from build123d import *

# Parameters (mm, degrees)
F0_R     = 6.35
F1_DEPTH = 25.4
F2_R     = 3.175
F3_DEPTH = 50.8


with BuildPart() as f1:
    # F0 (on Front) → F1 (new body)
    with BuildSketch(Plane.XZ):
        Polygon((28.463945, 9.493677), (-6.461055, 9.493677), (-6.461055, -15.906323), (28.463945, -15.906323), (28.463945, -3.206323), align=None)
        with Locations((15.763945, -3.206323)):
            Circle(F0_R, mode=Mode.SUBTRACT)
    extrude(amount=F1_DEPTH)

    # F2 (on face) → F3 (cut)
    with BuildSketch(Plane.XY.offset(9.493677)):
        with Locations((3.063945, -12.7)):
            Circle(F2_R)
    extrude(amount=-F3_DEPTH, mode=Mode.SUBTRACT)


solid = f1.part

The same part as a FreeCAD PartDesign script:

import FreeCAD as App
import Part
import Sketcher
Q = App.Units.Quantity

doc = App.newDocument("Part")
params = doc.addObject("Spreadsheet::Sheet", "Params")
for row, (alias, value) in enumerate([
    ("sketch1_diameter", "0.5 in"),
    ("sketch1_height", "1 in"),
    ("sketch1_width", "1.375 in"),
    ("pad1_length", "1 in"),
    ("sketch2_diameter", "0.25 in"),
    ("pocket1_length", "2 in"),
], start=1):
    params.set(f"A{row}", alias)
    params.set(f"B{row}", "=" + value)
    params.setAlias(f"B{row}", alias)

body = doc.addObject("PartDesign::Body", "Body")

sketch1 = doc.addObject("Sketcher::SketchObject", "Sketch")
body.addObject(sketch1)
sketch1.AttachmentSupport = (doc.XZ_Plane, [""])
sketch1.MapMode = "FlatFace"
sketch1.addGeometry([
    Part.LineSegment(App.Vector(28, 9, 0), App.Vector(-6, 9, 0)),
    Part.LineSegment(App.Vector(-6, 9, 0), App.Vector(-6, -16, 0)),
    Part.LineSegment(App.Vector(-6, -16, 0), App.Vector(28, -16, 0)),
    Part.LineSegment(App.Vector(28, -16, 0), App.Vector(28, 9, 0)),
    Part.Circle(App.Vector(16, -3, 0), App.Vector(0, 0, 1), 6),
], False)
sketch1.addConstraint([
    Sketcher.Constraint("Coincident", 0, 2, 1, 1),
    Sketcher.Constraint("Coincident", 1, 2, 2, 1),
    Sketcher.Constraint("Coincident", 2, 2, 3, 1),
    Sketcher.Constraint("Coincident", 3, 2, 0, 1),
    Sketcher.Constraint("Horizontal", 0),
    Sketcher.Constraint("Vertical", 1),
    Sketcher.Constraint("Horizontal", 2),
    Sketcher.Constraint("Vertical", 3),
    Sketcher.Constraint("Diameter", 4, Q("0.5 in")),
    Sketcher.Constraint("DistanceY", 1, 2, 1, 1, Q("1 in")),
    Sketcher.Constraint("DistanceY", 4, 3, 0, 2, Q("0.5 in")),
    Sketcher.Constraint("DistanceX", 4, 3, 2, 2, Q("0.5 in")),
    Sketcher.Constraint("DistanceX", 0, 2, 0, 1, Q("1.375 in")),
    Sketcher.Constraint("DistanceX", -1, 1, 4, 3, 15.763945),
    Sketcher.Constraint("DistanceY", 4, 3, -1, 1, 3.206323),
])
sketch1.setExpression("Constraints[8]", "Params.sketch1_diameter")
sketch1.setExpression("Constraints[9]", "Params.sketch1_height")
sketch1.setExpression("Constraints[12]", "Params.sketch1_width")
pad1 = doc.addObject("PartDesign::Pad", "Pad")
body.addObject(pad1)
pad1.Profile = sketch1
pad1.setExpression("Length", "Params.pad1_length")

sketch2 = doc.addObject("Sketcher::SketchObject", "Sketch001")
body.addObject(sketch2)
sketch2.AttachmentSupport = (doc.XY_Plane, [""])
sketch2.MapMode = "FlatFace"
sketch2.AttachmentOffset = App.Placement(App.Vector(0, 0, 9.493677), App.Rotation())
sketch2.addGeometry(Part.Circle(App.Vector(3.1, -12.7, 0), App.Vector(0, 0, 1), 3.2), False)
sketch2.addConstraint([
    Sketcher.Constraint("Diameter", 0, Q("0.25 in")),
    Sketcher.Constraint("DistanceY", 0, 3, -1, 1, Q("0.5 in")),
    Sketcher.Constraint("DistanceX", -1, 1, 0, 3, 3.063945),
])
sketch2.setExpression("Constraints[0]", "Params.sketch2_diameter")
pocket1 = doc.addObject("PartDesign::Pocket", "Pocket")
body.addObject(pocket1)
pocket1.Profile = sketch2
pocket1.setExpression("Length", "Params.pocket1_length")

doc.recompute()
